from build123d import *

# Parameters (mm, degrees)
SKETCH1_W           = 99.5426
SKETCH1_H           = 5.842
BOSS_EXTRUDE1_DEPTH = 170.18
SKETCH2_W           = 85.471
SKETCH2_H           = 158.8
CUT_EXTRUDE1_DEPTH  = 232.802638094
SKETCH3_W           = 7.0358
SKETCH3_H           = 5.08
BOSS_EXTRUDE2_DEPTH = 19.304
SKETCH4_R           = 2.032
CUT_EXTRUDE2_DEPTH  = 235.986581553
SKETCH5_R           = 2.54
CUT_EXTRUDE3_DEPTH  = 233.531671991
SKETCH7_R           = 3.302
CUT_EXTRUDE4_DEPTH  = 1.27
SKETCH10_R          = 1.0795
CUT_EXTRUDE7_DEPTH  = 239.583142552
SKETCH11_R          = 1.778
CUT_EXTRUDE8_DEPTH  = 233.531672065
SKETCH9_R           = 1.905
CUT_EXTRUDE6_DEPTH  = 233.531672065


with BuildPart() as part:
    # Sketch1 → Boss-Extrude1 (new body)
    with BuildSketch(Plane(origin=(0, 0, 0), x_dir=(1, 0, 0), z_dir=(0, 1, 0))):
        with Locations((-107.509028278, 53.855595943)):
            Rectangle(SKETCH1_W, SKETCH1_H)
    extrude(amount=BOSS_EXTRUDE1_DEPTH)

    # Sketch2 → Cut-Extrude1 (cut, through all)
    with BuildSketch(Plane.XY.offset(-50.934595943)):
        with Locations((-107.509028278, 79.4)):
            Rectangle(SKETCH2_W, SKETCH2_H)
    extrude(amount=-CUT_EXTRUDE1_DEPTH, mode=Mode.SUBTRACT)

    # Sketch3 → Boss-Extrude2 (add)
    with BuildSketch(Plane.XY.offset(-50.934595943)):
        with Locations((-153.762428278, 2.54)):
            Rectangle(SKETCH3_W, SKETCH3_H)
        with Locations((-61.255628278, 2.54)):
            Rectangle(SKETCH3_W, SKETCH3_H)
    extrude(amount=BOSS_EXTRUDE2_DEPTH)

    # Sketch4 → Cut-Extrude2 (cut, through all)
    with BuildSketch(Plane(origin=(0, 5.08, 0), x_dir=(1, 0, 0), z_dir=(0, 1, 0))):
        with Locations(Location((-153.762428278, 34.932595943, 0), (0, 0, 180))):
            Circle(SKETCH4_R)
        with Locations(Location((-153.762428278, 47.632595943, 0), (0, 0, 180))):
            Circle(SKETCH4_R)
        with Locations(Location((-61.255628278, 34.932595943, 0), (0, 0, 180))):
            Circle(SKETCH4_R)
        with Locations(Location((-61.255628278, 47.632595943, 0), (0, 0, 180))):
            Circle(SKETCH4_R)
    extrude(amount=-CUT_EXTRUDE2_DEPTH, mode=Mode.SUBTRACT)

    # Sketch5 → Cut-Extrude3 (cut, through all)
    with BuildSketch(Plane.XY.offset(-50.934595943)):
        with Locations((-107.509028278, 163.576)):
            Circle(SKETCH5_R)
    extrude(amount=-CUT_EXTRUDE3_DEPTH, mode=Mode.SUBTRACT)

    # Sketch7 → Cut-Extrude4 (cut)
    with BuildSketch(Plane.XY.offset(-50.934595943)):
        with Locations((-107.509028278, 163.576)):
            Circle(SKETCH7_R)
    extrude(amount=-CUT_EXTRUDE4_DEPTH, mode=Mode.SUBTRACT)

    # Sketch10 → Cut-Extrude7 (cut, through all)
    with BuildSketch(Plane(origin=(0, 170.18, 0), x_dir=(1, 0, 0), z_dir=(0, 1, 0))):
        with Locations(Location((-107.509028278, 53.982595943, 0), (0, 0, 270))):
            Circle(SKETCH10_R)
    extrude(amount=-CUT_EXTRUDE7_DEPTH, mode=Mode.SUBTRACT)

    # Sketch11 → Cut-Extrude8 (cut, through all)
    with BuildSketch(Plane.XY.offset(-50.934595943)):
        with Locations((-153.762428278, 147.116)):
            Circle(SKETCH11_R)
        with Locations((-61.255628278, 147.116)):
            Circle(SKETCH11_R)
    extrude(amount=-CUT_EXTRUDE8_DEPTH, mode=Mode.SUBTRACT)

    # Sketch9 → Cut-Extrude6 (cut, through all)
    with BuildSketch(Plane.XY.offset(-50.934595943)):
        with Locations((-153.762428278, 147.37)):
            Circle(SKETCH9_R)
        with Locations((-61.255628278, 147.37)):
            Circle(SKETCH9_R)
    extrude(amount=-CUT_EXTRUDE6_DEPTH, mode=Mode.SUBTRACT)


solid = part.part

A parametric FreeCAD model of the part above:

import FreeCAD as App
import Part
import Sketcher
from FreeCAD import Vector
Q = App.Units.Quantity

doc = App.newDocument("Part")
params = doc.addObject("Spreadsheet::Sheet", "Params")
for row, (alias, value) in enumerate([
    ("sketch1_height", "0.23 in"),
    ("sketch1_width", "3.919 in"),
    ("pad1_length", "6.7 in"),
    ("sketch2_width", "3.365 in"),
    ("sketch3_height", "0.2 in"),
    ("sketch3_width", "0.277 in"),
    ("pad2_length", "0.76 in"),
    ("sketch4_diameter", "0.16 in"),
    ("sketch5_diameter", "0.2 in"),
    ("sketch6_diameter", "0.26 in"),
    ("pocket4_length", "0.05 in"),
    ("sketch7_diameter", "0.085 in"),
    ("sketch8_diameter", "0.14 in"),
    ("sketch9_diameter", "0.15 in"),
], start=1):
    params.set(f"A{row}", alias)
    params.set(f"B{row}", "=" + value)
    params.setAlias(f"B{row}", alias)

body = doc.addObject("PartDesign::Body", "Body")

sketch1 = body.newObject("Sketcher::SketchObject", "Sketch")
sketch1.AttachmentSupport = (doc.getObject("XZ_Plane"), [""])
sketch1.MapMode = "FlatFace"
sketch1.addGeometry([
    Part.LineSegment(Vector(-157, -57, 0), Vector(-157, -51, 0)),
    Part.LineSegment(Vector(-157, -51, 0), Vector(-58, -51, 0)),
    Part.LineSegment(Vector(-58, -51, 0), Vector(-58, -57, 0)),
    Part.LineSegment(Vector(-58, -57, 0), Vector(-157, -57, 0)),
], False)
sketch1.addConstraint([
    Sketcher.Constraint("Coincident", 0, 2, 1, 1),
    Sketcher.Constraint("Coincident", 1, 2, 2, 1),
    Sketcher.Constraint("Coincident", 2, 2, 3, 1),
    Sketcher.Constraint("Coincident", 3, 2, 0, 1),
    Sketcher.Constraint("Vertical", 0),
    Sketcher.Constraint("Horizontal", 1),
    Sketcher.Constraint("Vertical", 2),
    Sketcher.Constraint("Horizontal", 3),
    Sketcher.Constraint("DistanceY", 0, 1, 0, 2, Q("0.23 in")),
    Sketcher.Constraint("DistanceX", 1, 1, 1, 2, Q("3.919 in")),
    Sketcher.Constraint("DistanceX", 0, 2, -1, 1, 157.280328),
    Sketcher.Constraint("DistanceY", 0, 2, -1, 1, 50.934596),
])
sketch1.setExpression("Constraints[8]", "Params.sketch1_height")
sketch1.setExpression("Constraints[9]", "Params.sketch1_width")
pad1 = body.newObject("PartDesign::Pad", "Pad")
pad1.Profile = sketch1
pad1.setExpression("Length", "Params.pad1_length")
pad1.Reversed = True

sketch2 = body.newObject("Sketcher::SketchObject", "Sketch001")
sketch2.AttachmentSupport = (doc.getObject("XY_Plane"), [""])
sketch2.MapMode = "FlatFace"
sketch2.AttachmentOffset = App.Placement(Vector(0, 0, -50.934596), App.Rotation())
sketch2.addGeometry([
    Part.LineSegment(Vector(-150, 159, 0), Vector(-150, 0, 0)),
    Part.LineSegment(Vector(-150, 0, 0), Vector(-65, 0, 0)),
    Part.LineSegment(Vector(-65, 0, 0), Vector(-65, 159, 0)),
    Part.LineSegment(Vector(-65, 159, 0), Vector(-150, 159, 0)),
], False)
sketch2.addConstraint([
    Sketcher.Constraint("Coincident", 0, 2, 1, 1),
    Sketcher.Constraint("Coincident", 1, 2, 2, 1),
    Sketcher.Constraint("Coincident", 2, 2, 3, 1),
    Sketcher.Constraint("Coincident", 3, 2, 0, 1),
    Sketcher.Constraint("Vertical", 0),
    Sketcher.Constraint("Horizontal", 1),
    Sketcher.Constraint("Vertical", 2),
    Sketcher.Constraint("Horizontal", 3),
    Sketcher.Constraint("PointOnObject", 0, 2, -1),
    Sketcher.Constraint("DistanceX", 1, 1, 1, 2, Q("3.365 in")),
    Sketcher.Constraint("DistanceY", 0, 2, 0, 1, 158.8),
    Sketcher.Constraint("DistanceX", 0, 2, -1, 1, 150.244528),
])
sketch2.setExpression("Constraints[9]", "Params.sketch2_width")
pocket1 = body.newObject("PartDesign::Pocket", "Pocket")
pocket1.Profile = sketch2
pocket1.Type = "ThroughAll"

sketch3 = body.newObject("Sketcher::SketchObject", "Sketch002")
sketch3.AttachmentSupport = (doc.getObject("XY_Plane"), [""])
sketch3.MapMode = "FlatFace"
sketch3.AttachmentOffset = App.Placement(Vector(0, 0, -50.934596), App.Rotation())
sketch3.addGeometry([
    Part.LineSegment(Vector(-157, 5, 0), Vector(-157, 0, 0)),
    Part.LineSegment(Vector(-157, 0, 0), Vector(-150, 0, 0)),
    Part.LineSegment(Vector(-150, 0, 0), Vector(-150, 5, 0)),
    Part.LineSegment(Vector(-150, 5, 0), Vector(-157, 5, 0)),
    Part.LineSegment(Vector(-65, 5, 0), Vector(-65, 0, 0)),
    Part.LineSegment(Vector(-65, 0, 0), Vector(-58, 0, 0)),
    Part.LineSegment(Vector(-58, 0, 0), Vector(-58, 5, 0)),
    Part.LineSegment(Vector(-58, 5, 0), Vector(-65, 5, 0)),
], False)
sketch3.addConstraint([
    Sketcher.Constraint("Coincident", 0, 2, 1, 1),
    Sketcher.Constraint("Coincident", 1, 2, 2, 1),
    Sketcher.Constraint("Coincident", 2, 2, 3, 1),
    Sketcher.Constraint("Coincident", 3, 2, 0, 1),
    Sketcher.Constraint("Coincident", 4, 2, 5, 1),
    Sketcher.Constraint("Coincident", 5, 2, 6, 1),
    Sketcher.Constraint("Coincident", 6, 2, 7, 1),
    Sketcher.Constraint("Coincident", 7, 2, 4, 1),
    Sketcher.Constraint("Vertical", 0),
    Sketcher.Constraint("Horizontal", 1),
    Sketcher.Constraint("Vertical", 2),
    Sketcher.Constraint("Horizontal", 3),
    Sketcher.Constraint("Vertical", 4),
    Sketcher.Constraint("Horizontal", 5),
    Sketcher.Constraint("Vertical", 6),
    Sketcher.Constraint("Horizontal", 7),
    Sketcher.Constraint("PointOnObject", 0, 2, -1),
    Sketcher.Constraint("PointOnObject", 4, 2, -1),
    Sketcher.Constraint("Horizontal", 3, 2, 6, 2),
    Sketcher.Constraint("Equal", 3, 5),
    Sketcher.Constraint("DistanceY", 0, 2, 0, 1, Q("0.2 in")),
    Sketcher.Constraint("DistanceX", 1, 1, 1, 2, Q("0.277 in")),
    Sketcher.Constraint("DistanceX", 1, 2, 4, 2, Q("3.365 in")),
    Sketcher.Constraint("DistanceX", 0, 2, -1, 1, 157.280328),
])
sketch3.setExpression("Constraints[20]", "Params.sketch3_height")
sketch3.setExpression("Constraints[21]", "Params.sketch3_width")
pad2 = body.newObject("PartDesign::Pad", "Pad001")
pad2.Profile = sketch3
pad2.setExpression("Length", "Params.pad2_length")

sketch4 = body.newObject("Sketcher::SketchObject", "Sketch003")
sketch4.AttachmentSupport = (doc.getObject("XZ_Plane"), [""])
sketch4.MapMode = "FlatFace"
sketch4.AttachmentOffset = App.Placement(Vector(0, 0, -0.2 * 25.4), App.Rotation())
sketch4.addGeometry([
    Part.Circle(Vector(-153.8, -34.9, 0), Vector(0, 0, 1), 2),
    Part.Circle(Vector(-153.8, -47.6, 0), Vector(0, 0, 1), 2),
    Part.Circle(Vector(-61.3, -34.9, 0), Vector(0, 0, 1), 2),
    Part.Circle(Vector(-61.3, -47.6, 0), Vector(0, 0, 1), 2),
], False)
sketch4.addConstraint([
    Sketcher.Constraint("Equal", 0, 1),
    Sketcher.Constraint("Equal", 1, 2),
    Sketcher.Constraint("Equal", 2, 3),
    Sketcher.Constraint("Horizontal", 0, 3, 2, 3),
    Sketcher.Constraint("Horizontal", 1, 3, 3, 3),
    Sketcher.Constraint("Vertical", 0, 3, 1, 3),
    Sketcher.Constraint("Vertical", 2, 3, 3, 3),
    Sketcher.Constraint("Diameter", 0, Q("0.16 in")),
    Sketcher.Constraint("DistanceY", 1, 3, 0, 3, Q("0.5 in")),
    Sketcher.Constraint("DistanceX", 0, 3, 2, 3, Q("3.642 in")),
    Sketcher.Constraint("DistanceX", 0, 3, -1, 1, 153.762428),
    Sketcher.Constraint("DistanceY", 0, 3, -1, 1, 34.932596),
])
sketch4.setExpression("Constraints[7]", "Params.sketch4_diameter")
pocket2 = body.newObject("PartDesign::Pocket", "Pocket001")
pocket2.Profile = sketch4
pocket2.Type = "ThroughAll"
pocket2.Reversed = True

sketch5 = body.newObject("Sketcher::SketchObject", "Sketch004")
sketch5.AttachmentSupport = (doc.getObject("XY_Plane"), [""])
sketch5.MapMode = "FlatFace"
sketch5.AttachmentOffset = App.Placement(Vector(0, 0, -50.934596), App.Rotation())
sketch5.addGeometry(Part.Circle(Vector(-107.5, 163.6, 0), Vector(0, 0, 1), 2.5), False)
sketch5.addConstraint([
    Sketcher.Constraint("Diameter", 0, Q("0.2 in")),
    Sketcher.Constraint("DistanceY", -1, 1, 0, 3, Q("6.44 in")),
    Sketcher.Constraint("DistanceX", 0, 3, -1, 1, 107.509028),
])
sketch5.setExpression("Constraints[0]", "Params.sketch5_diameter")
pocket3 = body.newObject("PartDesign::Pocket", "Pocket002")
pocket3.Profile = sketch5
pocket3.Type = "ThroughAll"

sketch6 = body.newObject("Sketcher::SketchObject", "Sketch005")
sketch6.AttachmentSupport = (doc.getObject("XY_Plane"), [""])
sketch6.MapMode = "FlatFace"
sketch6.AttachmentOffset = App.Placement(Vector(0, 0, -50.934596), App.Rotation())
sketch6.addGeometry(Part.Circle(Vector(-107.5, 163.6, 0), Vector(0, 0, 1), 3.3), False)
sketch6.addConstraint([
    Sketcher.Constraint("Diameter", 0, Q("0.26 in")),
    Sketcher.Constraint("DistanceY", -1, 1, 0, 3, Q("6.44 in")),
    Sketcher.Constraint("DistanceX", 0, 3, -1, 1, 107.509028),
])
sketch6.setExpression("Constraints[0]", "Params.sketch6_diameter")
pocket4 = body.newObject("PartDesign::Pocket", "Pocket003")
pocket4.Profile = sketch6
pocket4.setExpression("Length", "Params.pocket4_length")

sketch7 = body.newObject("Sketcher::SketchObject", "Sketch006")
sketch7.AttachmentSupport = (doc.getObject("XZ_Plane"), [""])
sketch7.MapMode = "FlatFace"
sketch7.AttachmentOffset = App.Placement(Vector(0, 0, -6.7 * 25.4), App.Rotation())
sketch7.addGeometry(Part.Circle(Vector(-107.5, -54, 0), Vector(0, 0, 1), 1.1), False)
sketch7.addConstraint([
    Sketcher.Constraint("Diameter", 0, Q("0.085 in")),
    Sketcher.Constraint("DistanceX", 0, 3, -1, 1, 107.509028),
    Sketcher.Constraint("DistanceY", 0, 3, -1, 1, 53.982596),
])
sketch7.setExpression("Constraints[0]", "Params.sketch7_diameter")
pocket5 = body.newObject("PartDesign::Pocket", "Pocket004")
pocket5.Profile = sketch7
pocket5.Type = "ThroughAll"
pocket5.Reversed = True

sketch8 = body.newObject("Sketcher::SketchObject", "Sketch007")
sketch8.AttachmentSupport = (doc.getObject("XY_Plane"), [""])
sketch8.MapMode = "FlatFace"
sketch8.AttachmentOffset = App.Placement(Vector(0, 0, -50.934596), App.Rotation())
sketch8.addGeometry([
    Part.Circle(Vector(-153.8, 147.1, 0), Vector(0, 0, 1), 1.8),
    Part.Circle(Vector(-61.3, 147.1, 0), Vector(0, 0, 1), 1.8),
], False)
sketch8.addConstraint([
    Sketcher.Constraint("Equal", 0, 1),
    Sketcher.Constraint("Horizontal", 0, 3, 1, 3),
    Sketcher.Constraint("Diameter", 0, Q("0.14 in")),
    Sketcher.Constraint("DistanceX", 0, 3, 1, 3, Q("3.642 in")),
    Sketcher.Constraint("DistanceY", -1, 1, 0, 3, 147.116),
    Sketcher.Constraint("DistanceX", 0, 3, -1, 1, 153.762428),
])
sketch8.setExpression("Constraints[2]", "Params.sketch8_diameter")
pocket6 = body.newObject("PartDesign::Pocket", "Pocket005")
pocket6.Profile = sketch8
pocket6.Type = "ThroughAll"

sketch9 = body.newObject("Sketcher::SketchObject", "Sketch008")
sketch9.AttachmentSupport = (doc.getObject("XY_Plane"), [""])
sketch9.MapMode = "FlatFace"
sketch9.AttachmentOffset = App.Placement(Vector(0, 0, -50.934596), App.Rotation())
sketch9.addGeometry([
    Part.Circle(Vector(-153.8, 147.4, 0), Vector(0, 0, 1), 1.9),
    Part.Circle(Vector(-61.3, 147.4, 0), Vector(0, 0, 1), 1.9),
], False)
sketch9.addConstraint([
    Sketcher.Constraint("Equal", 0, 1),
    Sketcher.Constraint("Horizontal", 0, 3, 1, 3),
    Sketcher.Constraint("Diameter", 0, Q("0.15 in")),
    Sketcher.Constraint("DistanceX", 0, 3, 1, 3, Q("3.642 in")),
    Sketcher.Constraint("DistanceY", -1, 1, 0, 3, 147.37),
    Sketcher.Constraint("DistanceX", 0, 3, -1, 1, 153.762428),
])
sketch9.setExpression("Constraints[2]", "Params.sketch9_diameter")
pocket7 = body.newObject("PartDesign::Pocket", "Pocket006")
pocket7.Profile = sketch9
pocket7.Type = "ThroughAll"

doc.recompute()
